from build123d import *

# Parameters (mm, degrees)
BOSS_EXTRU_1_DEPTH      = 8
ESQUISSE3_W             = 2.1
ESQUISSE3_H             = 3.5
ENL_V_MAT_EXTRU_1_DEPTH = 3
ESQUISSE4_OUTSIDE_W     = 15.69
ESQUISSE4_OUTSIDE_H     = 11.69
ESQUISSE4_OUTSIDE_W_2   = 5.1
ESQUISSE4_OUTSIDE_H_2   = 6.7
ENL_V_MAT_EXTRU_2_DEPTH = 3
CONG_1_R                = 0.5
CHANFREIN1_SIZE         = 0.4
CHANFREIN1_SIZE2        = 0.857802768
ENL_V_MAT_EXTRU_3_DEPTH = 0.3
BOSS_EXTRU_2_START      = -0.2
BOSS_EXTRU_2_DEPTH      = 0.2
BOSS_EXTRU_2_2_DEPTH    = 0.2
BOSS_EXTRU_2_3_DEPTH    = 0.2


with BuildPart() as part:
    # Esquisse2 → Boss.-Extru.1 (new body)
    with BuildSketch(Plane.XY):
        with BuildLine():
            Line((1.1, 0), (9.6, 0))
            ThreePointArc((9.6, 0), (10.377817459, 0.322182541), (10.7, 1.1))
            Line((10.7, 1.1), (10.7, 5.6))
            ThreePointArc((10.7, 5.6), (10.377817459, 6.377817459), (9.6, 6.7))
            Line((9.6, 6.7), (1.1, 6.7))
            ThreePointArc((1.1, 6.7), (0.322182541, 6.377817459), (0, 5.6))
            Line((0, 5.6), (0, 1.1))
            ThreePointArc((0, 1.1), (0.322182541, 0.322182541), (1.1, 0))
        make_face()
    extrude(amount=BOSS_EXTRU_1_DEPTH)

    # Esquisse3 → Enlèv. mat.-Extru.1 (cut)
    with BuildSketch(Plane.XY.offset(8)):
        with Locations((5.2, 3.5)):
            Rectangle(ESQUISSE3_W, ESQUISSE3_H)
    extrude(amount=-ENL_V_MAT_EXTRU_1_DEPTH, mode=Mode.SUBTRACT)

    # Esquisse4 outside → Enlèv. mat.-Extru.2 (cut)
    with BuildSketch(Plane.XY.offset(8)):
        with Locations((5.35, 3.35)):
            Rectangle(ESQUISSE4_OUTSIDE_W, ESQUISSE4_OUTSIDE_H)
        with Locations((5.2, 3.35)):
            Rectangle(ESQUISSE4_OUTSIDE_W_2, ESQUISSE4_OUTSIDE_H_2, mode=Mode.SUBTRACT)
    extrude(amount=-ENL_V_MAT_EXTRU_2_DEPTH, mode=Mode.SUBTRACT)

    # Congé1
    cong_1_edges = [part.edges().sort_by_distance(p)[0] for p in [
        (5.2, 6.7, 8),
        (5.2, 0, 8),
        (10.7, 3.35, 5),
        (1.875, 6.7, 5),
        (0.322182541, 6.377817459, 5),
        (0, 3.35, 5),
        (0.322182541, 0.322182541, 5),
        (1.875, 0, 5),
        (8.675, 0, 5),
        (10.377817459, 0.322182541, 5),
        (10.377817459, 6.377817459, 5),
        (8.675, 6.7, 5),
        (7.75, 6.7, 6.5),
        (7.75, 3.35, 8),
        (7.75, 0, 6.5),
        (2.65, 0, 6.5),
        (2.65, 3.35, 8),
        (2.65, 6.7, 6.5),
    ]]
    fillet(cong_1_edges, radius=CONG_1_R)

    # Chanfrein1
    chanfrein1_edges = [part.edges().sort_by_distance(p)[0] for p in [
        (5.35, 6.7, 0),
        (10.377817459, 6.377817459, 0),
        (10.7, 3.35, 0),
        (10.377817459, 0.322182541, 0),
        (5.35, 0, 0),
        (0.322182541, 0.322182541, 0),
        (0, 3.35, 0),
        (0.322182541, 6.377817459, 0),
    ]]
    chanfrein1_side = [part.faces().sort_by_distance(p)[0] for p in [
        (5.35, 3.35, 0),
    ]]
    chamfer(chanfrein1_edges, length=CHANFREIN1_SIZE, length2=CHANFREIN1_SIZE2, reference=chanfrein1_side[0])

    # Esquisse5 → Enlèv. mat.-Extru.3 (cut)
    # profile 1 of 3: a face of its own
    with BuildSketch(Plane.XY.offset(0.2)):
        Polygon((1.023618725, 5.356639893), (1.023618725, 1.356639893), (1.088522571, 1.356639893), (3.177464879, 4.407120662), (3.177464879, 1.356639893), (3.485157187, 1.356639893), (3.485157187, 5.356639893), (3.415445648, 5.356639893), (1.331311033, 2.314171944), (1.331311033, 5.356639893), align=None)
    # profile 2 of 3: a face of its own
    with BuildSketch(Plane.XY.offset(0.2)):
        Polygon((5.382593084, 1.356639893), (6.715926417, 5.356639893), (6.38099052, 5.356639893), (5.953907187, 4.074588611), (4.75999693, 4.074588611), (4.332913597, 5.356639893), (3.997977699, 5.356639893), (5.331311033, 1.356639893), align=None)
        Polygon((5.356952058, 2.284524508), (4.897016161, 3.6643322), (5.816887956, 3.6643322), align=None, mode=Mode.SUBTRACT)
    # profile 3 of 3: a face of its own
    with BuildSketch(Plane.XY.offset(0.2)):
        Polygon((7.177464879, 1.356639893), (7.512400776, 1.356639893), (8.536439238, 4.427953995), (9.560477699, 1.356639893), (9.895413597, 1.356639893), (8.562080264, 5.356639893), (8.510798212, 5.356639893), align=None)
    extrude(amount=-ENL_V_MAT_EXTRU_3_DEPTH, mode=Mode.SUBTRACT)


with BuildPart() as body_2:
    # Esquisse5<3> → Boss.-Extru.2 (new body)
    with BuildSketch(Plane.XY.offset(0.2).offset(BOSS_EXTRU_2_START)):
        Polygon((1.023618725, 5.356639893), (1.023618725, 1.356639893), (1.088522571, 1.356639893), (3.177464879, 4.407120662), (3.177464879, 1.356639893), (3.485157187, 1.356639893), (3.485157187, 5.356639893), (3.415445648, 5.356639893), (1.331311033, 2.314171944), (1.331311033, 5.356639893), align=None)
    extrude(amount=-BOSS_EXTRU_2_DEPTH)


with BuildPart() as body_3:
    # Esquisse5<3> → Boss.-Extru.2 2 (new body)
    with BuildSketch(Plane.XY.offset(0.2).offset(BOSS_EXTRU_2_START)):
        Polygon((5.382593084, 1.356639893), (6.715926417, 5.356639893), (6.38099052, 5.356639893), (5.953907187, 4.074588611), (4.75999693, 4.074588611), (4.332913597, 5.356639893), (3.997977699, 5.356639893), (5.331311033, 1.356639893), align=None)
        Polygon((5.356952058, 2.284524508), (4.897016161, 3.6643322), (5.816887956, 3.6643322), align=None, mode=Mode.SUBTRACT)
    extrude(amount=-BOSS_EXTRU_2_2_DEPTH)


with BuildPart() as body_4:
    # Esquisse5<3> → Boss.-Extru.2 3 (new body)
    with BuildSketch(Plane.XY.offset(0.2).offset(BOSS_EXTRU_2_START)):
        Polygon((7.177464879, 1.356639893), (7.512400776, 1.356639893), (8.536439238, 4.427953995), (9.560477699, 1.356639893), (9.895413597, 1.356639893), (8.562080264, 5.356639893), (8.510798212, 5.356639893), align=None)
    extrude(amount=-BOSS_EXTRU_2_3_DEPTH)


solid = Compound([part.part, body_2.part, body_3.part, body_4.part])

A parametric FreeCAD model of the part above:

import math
import FreeCAD as App
import Part
import Sketcher

V = App.Vector
Q = App.Units.Quantity


def edges_at(feature, points):
    """Names of the edges that pass closest to the given points."""
    edges = feature.Shape.Edges
    near = lambda p: min(range(len(edges)), key=lambda i: edges[i].distToShape(Part.Vertex(*p))[0])
    return sorted({f"Edge{near(p) + 1}" for p in points})


def add_polygon(sketch, points):
    """Adds a closed chain of lines whose ends are joined by coincident constraints."""
    first, n = sketch.GeometryCount, len(points)
    for a, b in zip(points, points[1:] + points[:1]):
        sketch.addGeometry(Part.LineSegment(App.Vector(*a, 0), App.Vector(*b, 0)), False)
    for i in range(n):
        sketch.addConstraint(Sketcher.Constraint("Coincident", first + i, 2, first + (i + 1) % n, 1))

doc = App.newDocument("Part")
body = doc.addObject("PartDesign::Body", "Body")

sketch1 = body.newObject("Sketcher::SketchObject", "Sketch")
sketch1.AttachmentSupport = (doc.getObject("XY_Plane"), [""])
sketch1.MapMode = "FlatFace"
sketch1.addGeometry([
    Part.LineSegment(V(1.1, 0, 0), V(9.6, 0, 0)),
    Part.ArcOfCircle(Part.Circle(V(9.6, 1.1, 0), V(0, 0, 1), 1.1), math.radians(-90), math.radians(0)),
    Part.LineSegment(V(10.7, 1.1, 0), V(10.7, 5.6, 0)),
    Part.ArcOfCircle(Part.Circle(V(9.6, 5.6, 0), V(0, 0, 1), 1.1), math.radians(0), math.radians(90)),
    Part.LineSegment(V(9.6, 6.7, 0), V(1.1, 6.7, 0)),
    Part.ArcOfCircle(Part.Circle(V(1.1, 5.6, 0), V(0, 0, 1), 1.1), math.radians(90), math.radians(180)),
    Part.LineSegment(V(0, 5.6, 0), V(0, 1.1, 0)),
    Part.ArcOfCircle(Part.Circle(V(1.1, 1.1, 0), V(0, 0, 1), 1.1), math.radians(-180), math.radians(-90)),
], False)
sketch1.addConstraint([
    Sketcher.Constraint("Tangent", 0, 2, 1, 1),
    Sketcher.Constraint("Tangent", 1, 2, 2, 1),
    Sketcher.Constraint("Tangent", 2, 2, 3, 1),
    Sketcher.Constraint("Tangent", 3, 2, 4, 1),
    Sketcher.Constraint("Tangent", 4, 2, 5, 1),
    Sketcher.Constraint("Tangent", 5, 2, 6, 1),
    Sketcher.Constraint("Tangent", 6, 2, 7, 1),
    Sketcher.Constraint("Tangent", 7, 2, 0, 1),
    Sketcher.Constraint("Horizontal", 0),
    Sketcher.Constraint("Vertical", 2),
    Sketcher.Constraint("Horizontal", 4),
    Sketcher.Constraint("Vertical", 6),
    Sketcher.Constraint("Equal", 1, 3),
    Sketcher.Constraint("Equal", 3, 5),
    Sketcher.Constraint("Equal", 5, 7),
    Sketcher.Constraint("PointOnObject", 0, 2, -1),
    Sketcher.Constraint("PointOnObject", 5, 2, -2),
    Sketcher.Constraint("Radius", 1, Q("1.1 mm")),
    Sketcher.Constraint("DistanceX", 0, 1, 0, 2, Q("8.5 mm")),
    Sketcher.Constraint("DistanceY", 2, 1, 2, 2, Q("4.5 mm")),
])
pad1 = body.newObject("PartDesign::Pad", "Pad")
pad1.Profile = sketch1
pad1.Length = 8

sketch2 = body.newObject("Sketcher::SketchObject", "Sketch001")
sketch2.AttachmentSupport = (doc.getObject("XY_Plane"), [""])
sketch2.MapMode = "FlatFace"
sketch2.AttachmentOffset = App.Placement(V(0, 0, 8), App.Rotation())
add_polygon(sketch2, [(4.2, 5.2), (4.2, 1.8), (6.2, 1.8), (6.2, 5.2)])
sketch2.addConstraint([
    Sketcher.Constraint("Vertical", 0),
    Sketcher.Constraint("Horizontal", 1),
    Sketcher.Constraint("Vertical", 2),
    Sketcher.Constraint("Horizontal", 3),
    Sketcher.Constraint("DistanceX", 1, 1, 1, 2, Q("2.1 mm")),
    Sketcher.Constraint("DistanceY", 0, 2, 0, 1, Q("3.5 mm")),
    Sketcher.Constraint("DistanceX", -1, 1, 0, 2, Q("4.15 mm")),
    Sketcher.Constraint("DistanceY", -1, 1, 0, 2, Q("1.75 mm")),
])
pocket1 = body.newObject("PartDesign::Pocket", "Pocket")
pocket1.Profile = sketch2
pocket1.Length = 3

sketch3 = body.newObject("Sketcher::SketchObject", "Sketch002")
sketch3.AttachmentSupport = (doc.getObject("XY_Plane"), [""])
sketch3.MapMode = "FlatFace"
sketch3.AttachmentOffset = App.Placement(V(0, 0, 8), App.Rotation())
add_polygon(sketch3, [(-2, 9), (-2, -2), (13, -2), (13, 9)])
add_polygon(sketch3, [(8, 0), (3, 0), (3, 7), (8, 7)])
sketch3.addConstraint([
    Sketcher.Constraint("Vertical", 0),
    Sketcher.Constraint("Horizontal", 1),
    Sketcher.Constraint("Vertical", 2),
    Sketcher.Constraint("Horizontal", 3),
    Sketcher.Constraint("Horizontal", 4),
    Sketcher.Constraint("Vertical", 5),
    Sketcher.Constraint("Horizontal", 6),
    Sketcher.Constraint("Vertical", 7),
    Sketcher.Constraint("PointOnObject", 4, 2, -1),
    Sketcher.Constraint("DistanceX", 4, 2, 4, 1, Q("5.1 mm")),
    Sketcher.Constraint("DistanceY", 5, 1, 5, 2, Q("6.7 mm")),
    Sketcher.Constraint("DistanceX", 1, 1, 1, 2, Q("15.69 mm")),
    Sketcher.Constraint("DistanceY", 0, 2, 0, 1, Q("11.69 mm")),
    Sketcher.Constraint("DistanceX", -1, 1, 4, 2, Q("2.65 mm")),
    Sketcher.Constraint("DistanceX", 0, 2, -1, 1, Q("2.495 mm")),
    Sketcher.Constraint("DistanceY", 0, 2, -1, 1, Q("2.495 mm")),
])
pocket2 = body.newObject("PartDesign::Pocket", "Pocket001")
pocket2.Profile = sketch3
pocket2.Length = 3
doc.recompute()

fillet = body.newObject("PartDesign::Fillet", "Fillet")
fillet.Base = (pocket2, edges_at(pocket2, [
    (5.2, 6.7, 8),
    (5.2, 0, 8),
    (10.7, 3.35, 5),
    (1.875, 6.7, 5),
    (0.322, 6.378, 5),
    (0, 3.35, 5),
    (0.322, 0.322, 5),
    (1.875, 0, 5),
    (8.675, 0, 5),
    (10.378, 0.322, 5),
    (10.378, 6.378, 5),
    (8.675, 6.7, 5),
    (7.75, 6.7, 6.5),
    (7.75, 3.35, 8),
    (7.75, 0, 6.5),
    (2.65, 0, 6.5),
    (2.65, 3.35, 8),
    (2.65, 6.7, 6.5),
]))
fillet.Radius = 0.5
doc.recompute()

chamfer = body.newObject("PartDesign::Chamfer", "Chamfer")
chamfer.Base = (fillet, edges_at(fillet, [
    (5.35, 6.7, 0),
    (10.378, 6.378, 0),
    (10.7, 3.35, 0),
    (10.378, 0.322, 0),
    (5.35, 0, 0),
    (0.322, 0.322, 0),
    (0, 3.35, 0),
    (0.322, 6.378, 0),
]))
chamfer.ChamferType = "Two distances"
chamfer.Size = 0.4
chamfer.Size2 = 0.857803

sketch4 = body.newObject("Sketcher::SketchObject", "Sketch003")
sketch4.AttachmentSupport = (doc.getObject("XY_Plane"), [""])
sketch4.MapMode = "FlatFace"
sketch4.AttachmentOffset = App.Placement(V(0, 0, 0.2), App.Rotation())
add_polygon(sketch4, [(1.02, 5.36), (1.02, 1.36), (1.09, 1.36), (3.18, 4.41), (3.18, 1.36), (3.49, 1.36), (3.49, 5.36), (3.42, 5.36), (1.33, 2.31), (1.33, 5.36)])
add_polygon(sketch4, [(5.38, 1.36), (6.72, 5.36), (6.38, 5.36), (5.95, 4.07), (4.76, 4.07), (4.33, 5.36), (4, 5.36), (5.33, 1.36)])
add_polygon(sketch4, [(5.82, 3.66), (5.36, 2.28), (4.9, 3.66)])
add_polygon(sketch4, [(7.18, 1.36), (7.51, 1.36), (8.54, 4.43), (9.56, 1.36), (9.9, 1.36), (8.56, 5.36), (8.51, 5.36)])
sketch4.addConstraint([
    Sketcher.Constraint("Vertical", 0),
    Sketcher.Constraint("Horizontal", 1),
    Sketcher.Constraint("Vertical", 3),
    Sketcher.Constraint("Horizontal", 4),
    Sketcher.Constraint("Vertical", 5),
    Sketcher.Constraint("Horizontal", 6),
    Sketcher.Constraint("Vertical", 8),
    Sketcher.Constraint("Horizontal", 9),
    Sketcher.Constraint("Horizontal", 11),
    Sketcher.Constraint("Horizontal", 13),
    Sketcher.Constraint("Horizontal", 15),
    Sketcher.Constraint("Horizontal", 17),
    Sketcher.Constraint("Horizontal", 20),
    Sketcher.Constraint("Horizontal", 21),
    Sketcher.Constraint("Horizontal", 24),
    Sketcher.Constraint("Horizontal", 26),
    Sketcher.Constraint("Parallel", 10, 18),
    Sketcher.Constraint("Parallel", 16, 19),
    Sketcher.Constraint("Parallel", 19, 25),
    Sketcher.Constraint("Parallel", 18, 27),
    Sketcher.Constraint("Horizontal", 1, 2, 3, 2),
    Sketcher.Constraint("Horizontal", 6, 2, 8, 2),
    Sketcher.Constraint("Horizontal", 9, 2, 10, 2),
    Sketcher.Constraint("Horizontal", 11, 2, 14, 2),
    Sketcher.Constraint("Horizontal", 4, 2, 16, 2),
    Sketcher.Constraint("Horizontal", 17, 2, 21, 2),
    Sketcher.Constraint("Horizontal", 21, 2, 23, 2),
    Sketcher.Constraint("Horizontal", 15, 2, 25, 2),
    Sketcher.Constraint("Equal", 4, 9),
    Sketcher.Constraint("Equal", 11, 15),
    Sketcher.Constraint("Equal", 15, 21),
    Sketcher.Constraint("Equal", 21, 24),
    Sketcher.Constraint("Equal", 17, 26),
    Sketcher.Constraint("Equal", 12, 14),
    Sketcher.Constraint("Equal", 10, 16),
    Sketcher.Constraint("Equal", 22, 23),
    Sketcher.Constraint("DistanceY", 0, 2, 0, 1, Q("4 mm")),
    Sketcher.Constraint("DistanceX", 6, 2, 6, 1, Q("0.069712 mm")),
    Sketcher.Constraint("DistanceX", 13, 2, 13, 1, Q("1.19391 mm")),
    Sketcher.Constraint("DistanceX", 20, 1, 20, 2, Q("0.919872 mm")),
    Sketcher.Constraint("DistanceY", 3, 2, 3, 1, Q("3.050481 mm")),
    Sketcher.Constraint("DistanceX", -1, 1, 21, 2, Q("7.512401 mm")),
    Sketcher.Constraint("DistanceX", -1, 1, 26, 2, Q("8.510798 mm")),
    Sketcher.Constraint("Distance", 7, Q("3.687849 mm")),
    Sketcher.Constraint("Distance", 10, Q("4.21637 mm")),
    Sketcher.Constraint("DistanceX", 1, 1, 1, 2, Q("0.064904 mm")),
    Sketcher.Constraint("DistanceX", 4, 1, 4, 2, Q("0.307692 mm")),
    Sketcher.Constraint("DistanceX", 17, 1, 17, 2, Q("0.051282 mm")),
    Sketcher.Constraint("DistanceY", 8, 1, 8, 2, Q("3.042468 mm")),
    Sketcher.Constraint("DistanceX", -1, 1, 0, 2, Q("1.023619 mm")),
    Sketcher.Constraint("DistanceY", -1, 1, 0, 2, Q("1.35664 mm")),
    Sketcher.Constraint("DistanceX", -1, 1, 11, 2, Q("6.380991 mm")),
    Sketcher.Constraint("DistanceY", -1, 1, 12, 2, Q("4.074589 mm")),
    Sketcher.Constraint("DistanceX", 16, 2, 18, 2, Q("0.025641 mm")),
    Sketcher.Constraint("DistanceY", 19, 2, 2, 2, Q("0.742788 mm")),
    Sketcher.Constraint("DistanceY", 20, 2, 22, 2, Q("0.763622 mm")),
])
pocket3 = body.newObject("PartDesign::Pocket", "Pocket002")
pocket3.Profile = sketch4
pocket3.Length = 0.3
body2 = doc.addObject("PartDesign::Body", "Body001")

sketch5 = body2.newObject("Sketcher::SketchObject", "Sketch004")
sketch5.AttachmentSupport = (doc.getObject("XY_Plane001"), [""])
sketch5.MapMode = "FlatFace"
add_polygon(sketch5, [(1.02, 5.36), (1.02, 1.36), (1.09, 1.36), (3.18, 4.41), (3.18, 1.36), (3.49, 1.36), (3.49, 5.36), (3.42, 5.36), (1.33, 2.31), (1.33, 5.36)])
sketch5.addConstraint([
    Sketcher.Constraint("Vertical", 0),
    Sketcher.Constraint("Horizontal", 1),
    Sketcher.Constraint("Vertical", 3),
    Sketcher.Constraint("Horizontal", 4),
    Sketcher.Constraint("Vertical", 5),
    Sketcher.Constraint("Horizontal", 6),
    Sketcher.Constraint("Vertical", 8),
    Sketcher.Constraint("Horizontal", 9),
    Sketcher.Constraint("Horizontal", 1, 2, 3, 2),
    Sketcher.Constraint("Horizontal", 6, 2, 8, 2),
    Sketcher.Constraint("Equal", 4, 9),
    Sketcher.Constraint("DistanceY", 0, 2, 0, 1, Q("4 mm")),
    Sketcher.Constraint("DistanceX", 6, 2, 6, 1, Q("0.069712 mm")),
    Sketcher.Constraint("DistanceY", 3, 2, 3, 1, Q("3.050481 mm")),
    Sketcher.Constraint("Distance", 7, Q("3.687849 mm")),
    Sketcher.Constraint("DistanceX", 1, 1, 1, 2, Q("0.064904 mm")),
    Sketcher.Constraint("DistanceX", 4, 1, 4, 2, Q("0.307692 mm")),
    Sketcher.Constraint("DistanceY", 8, 1, 8, 2, Q("3.042468 mm")),
    Sketcher.Constraint("DistanceX", -1, 1, 0, 2, Q("1.023619 mm")),
    Sketcher.Constraint("DistanceY", -1, 1, 0, 2, Q("1.35664 mm")),
])
pad2 = body2.newObject("PartDesign::Pad", "Pad001")
pad2.Profile = sketch5
pad2.Length = 0.2
pad2.Reversed = True
body3 = doc.addObject("PartDesign::Body", "Body002")

sketch6 = body3.newObject("Sketcher::SketchObject", "Sketch005")
sketch6.AttachmentSupport = (doc.getObject("XY_Plane002"), [""])
sketch6.MapMode = "FlatFace"
add_polygon(sketch6, [(5.38, 1.36), (6.72, 5.36), (6.38, 5.36), (5.95, 4.07), (4.76, 4.07), (4.33, 5.36), (4, 5.36), (5.33, 1.36)])
add_polygon(sketch6, [(5.82, 3.66), (5.36, 2.28), (4.9, 3.66)])
sketch6.addConstraint([
    Sketcher.Constraint("Horizontal", 1),
    Sketcher.Constraint("Horizontal", 3),
    Sketcher.Constraint("Horizontal", 5),
    Sketcher.Constraint("Horizontal", 7),
    Sketcher.Constraint("Horizontal", 10),
    Sketcher.Constraint("Parallel", 0, 8),
    Sketcher.Constraint("Parallel", 6, 9),
    Sketcher.Constraint("Horizontal", 1, 2, 4, 2),
    Sketcher.Constraint("Equal", 1, 5),
    Sketcher.Constraint("Equal", 2, 4),
    Sketcher.Constraint("Equal", 0, 6),
    Sketcher.Constraint("DistanceY", 6, 2, 4, 2, Q("4 mm")),
    Sketcher.Constraint("DistanceX", 3, 2, 3, 1, Q("1.19391 mm")),
    Sketcher.Constraint("DistanceX", 10, 1, 10, 2, Q("0.919872 mm")),
    Sketcher.Constraint("Distance", 0, Q("4.21637 mm")),
    Sketcher.Constraint("DistanceX", 1, 2, 1, 1, Q("0.334936 mm")),
    Sketcher.Constraint("DistanceX", 7, 1, 7, 2, Q("0.051282 mm")),
    Sketcher.Constraint("DistanceY", -1, 1, 0, 2, Q("5.35664 mm")),
    Sketcher.Constraint("DistanceX", -1, 1, 1, 2, Q("6.380991 mm")),
    Sketcher.Constraint("DistanceY", -1, 1, 2, 2, Q("4.074589 mm")),
    Sketcher.Constraint("DistanceX", 6, 2, 8, 2, Q("0.025641 mm")),
    Sketcher.Constraint("DistanceY", -1, 1, 8, 2, Q("2.284525 mm")),
])
pad3 = body3.newObject("PartDesign::Pad", "Pad002")
pad3.Profile = sketch6
pad3.Length = 0.2
pad3.Reversed = True
body4 = doc.addObject("PartDesign::Body", "Body003")

sketch7 = body4.newObject("Sketcher::SketchObject", "Sketch006")
sketch7.AttachmentSupport = (doc.getObject("XY_Plane003"), [""])
sketch7.MapMode = "FlatFace"
add_polygon(sketch7, [(7.18, 1.36), (7.51, 1.36), (8.54, 4.43), (9.56, 1.36), (9.9, 1.36), (8.56, 5.36), (8.51, 5.36)])
sketch7.addConstraint([
    Sketcher.Constraint("Horizontal", 0),
    Sketcher.Constraint("Horizontal", 3),
    Sketcher.Constraint("Horizontal", 5),
    Sketcher.Constraint("Horizontal", 0, 2, 2, 2),
    Sketcher.Constraint("Equal", 0, 3),
    Sketcher.Constraint("Equal", 1, 2),
    Sketcher.Constraint("Equal", 4, 6),
    Sketcher.Constraint("DistanceY", 2, 2, 4, 2, Q("4 mm")),
    Sketcher.Constraint("DistanceX", -1, 1, 0, 2, Q("7.512401 mm")),
    Sketcher.Constraint("DistanceX", -1, 1, 5, 2, Q("8.510798 mm")),
    Sketcher.Constraint("Distance", 4, Q("4.21637 mm")),
    Sketcher.Constraint("DistanceX", 5, 2, 5, 1, Q("0.051282 mm")),
    Sketcher.Constraint("DistanceY", -1, 1, 0, 2, Q("1.35664 mm")),
    Sketcher.Constraint("Distance", 1, Q("3.237534 mm")),
])
pad4 = body4.newObject("PartDesign::Pad", "Pad003")
pad4.Profile = sketch7
pad4.Length = 0.2
pad4.Reversed = True

doc.recompute()
